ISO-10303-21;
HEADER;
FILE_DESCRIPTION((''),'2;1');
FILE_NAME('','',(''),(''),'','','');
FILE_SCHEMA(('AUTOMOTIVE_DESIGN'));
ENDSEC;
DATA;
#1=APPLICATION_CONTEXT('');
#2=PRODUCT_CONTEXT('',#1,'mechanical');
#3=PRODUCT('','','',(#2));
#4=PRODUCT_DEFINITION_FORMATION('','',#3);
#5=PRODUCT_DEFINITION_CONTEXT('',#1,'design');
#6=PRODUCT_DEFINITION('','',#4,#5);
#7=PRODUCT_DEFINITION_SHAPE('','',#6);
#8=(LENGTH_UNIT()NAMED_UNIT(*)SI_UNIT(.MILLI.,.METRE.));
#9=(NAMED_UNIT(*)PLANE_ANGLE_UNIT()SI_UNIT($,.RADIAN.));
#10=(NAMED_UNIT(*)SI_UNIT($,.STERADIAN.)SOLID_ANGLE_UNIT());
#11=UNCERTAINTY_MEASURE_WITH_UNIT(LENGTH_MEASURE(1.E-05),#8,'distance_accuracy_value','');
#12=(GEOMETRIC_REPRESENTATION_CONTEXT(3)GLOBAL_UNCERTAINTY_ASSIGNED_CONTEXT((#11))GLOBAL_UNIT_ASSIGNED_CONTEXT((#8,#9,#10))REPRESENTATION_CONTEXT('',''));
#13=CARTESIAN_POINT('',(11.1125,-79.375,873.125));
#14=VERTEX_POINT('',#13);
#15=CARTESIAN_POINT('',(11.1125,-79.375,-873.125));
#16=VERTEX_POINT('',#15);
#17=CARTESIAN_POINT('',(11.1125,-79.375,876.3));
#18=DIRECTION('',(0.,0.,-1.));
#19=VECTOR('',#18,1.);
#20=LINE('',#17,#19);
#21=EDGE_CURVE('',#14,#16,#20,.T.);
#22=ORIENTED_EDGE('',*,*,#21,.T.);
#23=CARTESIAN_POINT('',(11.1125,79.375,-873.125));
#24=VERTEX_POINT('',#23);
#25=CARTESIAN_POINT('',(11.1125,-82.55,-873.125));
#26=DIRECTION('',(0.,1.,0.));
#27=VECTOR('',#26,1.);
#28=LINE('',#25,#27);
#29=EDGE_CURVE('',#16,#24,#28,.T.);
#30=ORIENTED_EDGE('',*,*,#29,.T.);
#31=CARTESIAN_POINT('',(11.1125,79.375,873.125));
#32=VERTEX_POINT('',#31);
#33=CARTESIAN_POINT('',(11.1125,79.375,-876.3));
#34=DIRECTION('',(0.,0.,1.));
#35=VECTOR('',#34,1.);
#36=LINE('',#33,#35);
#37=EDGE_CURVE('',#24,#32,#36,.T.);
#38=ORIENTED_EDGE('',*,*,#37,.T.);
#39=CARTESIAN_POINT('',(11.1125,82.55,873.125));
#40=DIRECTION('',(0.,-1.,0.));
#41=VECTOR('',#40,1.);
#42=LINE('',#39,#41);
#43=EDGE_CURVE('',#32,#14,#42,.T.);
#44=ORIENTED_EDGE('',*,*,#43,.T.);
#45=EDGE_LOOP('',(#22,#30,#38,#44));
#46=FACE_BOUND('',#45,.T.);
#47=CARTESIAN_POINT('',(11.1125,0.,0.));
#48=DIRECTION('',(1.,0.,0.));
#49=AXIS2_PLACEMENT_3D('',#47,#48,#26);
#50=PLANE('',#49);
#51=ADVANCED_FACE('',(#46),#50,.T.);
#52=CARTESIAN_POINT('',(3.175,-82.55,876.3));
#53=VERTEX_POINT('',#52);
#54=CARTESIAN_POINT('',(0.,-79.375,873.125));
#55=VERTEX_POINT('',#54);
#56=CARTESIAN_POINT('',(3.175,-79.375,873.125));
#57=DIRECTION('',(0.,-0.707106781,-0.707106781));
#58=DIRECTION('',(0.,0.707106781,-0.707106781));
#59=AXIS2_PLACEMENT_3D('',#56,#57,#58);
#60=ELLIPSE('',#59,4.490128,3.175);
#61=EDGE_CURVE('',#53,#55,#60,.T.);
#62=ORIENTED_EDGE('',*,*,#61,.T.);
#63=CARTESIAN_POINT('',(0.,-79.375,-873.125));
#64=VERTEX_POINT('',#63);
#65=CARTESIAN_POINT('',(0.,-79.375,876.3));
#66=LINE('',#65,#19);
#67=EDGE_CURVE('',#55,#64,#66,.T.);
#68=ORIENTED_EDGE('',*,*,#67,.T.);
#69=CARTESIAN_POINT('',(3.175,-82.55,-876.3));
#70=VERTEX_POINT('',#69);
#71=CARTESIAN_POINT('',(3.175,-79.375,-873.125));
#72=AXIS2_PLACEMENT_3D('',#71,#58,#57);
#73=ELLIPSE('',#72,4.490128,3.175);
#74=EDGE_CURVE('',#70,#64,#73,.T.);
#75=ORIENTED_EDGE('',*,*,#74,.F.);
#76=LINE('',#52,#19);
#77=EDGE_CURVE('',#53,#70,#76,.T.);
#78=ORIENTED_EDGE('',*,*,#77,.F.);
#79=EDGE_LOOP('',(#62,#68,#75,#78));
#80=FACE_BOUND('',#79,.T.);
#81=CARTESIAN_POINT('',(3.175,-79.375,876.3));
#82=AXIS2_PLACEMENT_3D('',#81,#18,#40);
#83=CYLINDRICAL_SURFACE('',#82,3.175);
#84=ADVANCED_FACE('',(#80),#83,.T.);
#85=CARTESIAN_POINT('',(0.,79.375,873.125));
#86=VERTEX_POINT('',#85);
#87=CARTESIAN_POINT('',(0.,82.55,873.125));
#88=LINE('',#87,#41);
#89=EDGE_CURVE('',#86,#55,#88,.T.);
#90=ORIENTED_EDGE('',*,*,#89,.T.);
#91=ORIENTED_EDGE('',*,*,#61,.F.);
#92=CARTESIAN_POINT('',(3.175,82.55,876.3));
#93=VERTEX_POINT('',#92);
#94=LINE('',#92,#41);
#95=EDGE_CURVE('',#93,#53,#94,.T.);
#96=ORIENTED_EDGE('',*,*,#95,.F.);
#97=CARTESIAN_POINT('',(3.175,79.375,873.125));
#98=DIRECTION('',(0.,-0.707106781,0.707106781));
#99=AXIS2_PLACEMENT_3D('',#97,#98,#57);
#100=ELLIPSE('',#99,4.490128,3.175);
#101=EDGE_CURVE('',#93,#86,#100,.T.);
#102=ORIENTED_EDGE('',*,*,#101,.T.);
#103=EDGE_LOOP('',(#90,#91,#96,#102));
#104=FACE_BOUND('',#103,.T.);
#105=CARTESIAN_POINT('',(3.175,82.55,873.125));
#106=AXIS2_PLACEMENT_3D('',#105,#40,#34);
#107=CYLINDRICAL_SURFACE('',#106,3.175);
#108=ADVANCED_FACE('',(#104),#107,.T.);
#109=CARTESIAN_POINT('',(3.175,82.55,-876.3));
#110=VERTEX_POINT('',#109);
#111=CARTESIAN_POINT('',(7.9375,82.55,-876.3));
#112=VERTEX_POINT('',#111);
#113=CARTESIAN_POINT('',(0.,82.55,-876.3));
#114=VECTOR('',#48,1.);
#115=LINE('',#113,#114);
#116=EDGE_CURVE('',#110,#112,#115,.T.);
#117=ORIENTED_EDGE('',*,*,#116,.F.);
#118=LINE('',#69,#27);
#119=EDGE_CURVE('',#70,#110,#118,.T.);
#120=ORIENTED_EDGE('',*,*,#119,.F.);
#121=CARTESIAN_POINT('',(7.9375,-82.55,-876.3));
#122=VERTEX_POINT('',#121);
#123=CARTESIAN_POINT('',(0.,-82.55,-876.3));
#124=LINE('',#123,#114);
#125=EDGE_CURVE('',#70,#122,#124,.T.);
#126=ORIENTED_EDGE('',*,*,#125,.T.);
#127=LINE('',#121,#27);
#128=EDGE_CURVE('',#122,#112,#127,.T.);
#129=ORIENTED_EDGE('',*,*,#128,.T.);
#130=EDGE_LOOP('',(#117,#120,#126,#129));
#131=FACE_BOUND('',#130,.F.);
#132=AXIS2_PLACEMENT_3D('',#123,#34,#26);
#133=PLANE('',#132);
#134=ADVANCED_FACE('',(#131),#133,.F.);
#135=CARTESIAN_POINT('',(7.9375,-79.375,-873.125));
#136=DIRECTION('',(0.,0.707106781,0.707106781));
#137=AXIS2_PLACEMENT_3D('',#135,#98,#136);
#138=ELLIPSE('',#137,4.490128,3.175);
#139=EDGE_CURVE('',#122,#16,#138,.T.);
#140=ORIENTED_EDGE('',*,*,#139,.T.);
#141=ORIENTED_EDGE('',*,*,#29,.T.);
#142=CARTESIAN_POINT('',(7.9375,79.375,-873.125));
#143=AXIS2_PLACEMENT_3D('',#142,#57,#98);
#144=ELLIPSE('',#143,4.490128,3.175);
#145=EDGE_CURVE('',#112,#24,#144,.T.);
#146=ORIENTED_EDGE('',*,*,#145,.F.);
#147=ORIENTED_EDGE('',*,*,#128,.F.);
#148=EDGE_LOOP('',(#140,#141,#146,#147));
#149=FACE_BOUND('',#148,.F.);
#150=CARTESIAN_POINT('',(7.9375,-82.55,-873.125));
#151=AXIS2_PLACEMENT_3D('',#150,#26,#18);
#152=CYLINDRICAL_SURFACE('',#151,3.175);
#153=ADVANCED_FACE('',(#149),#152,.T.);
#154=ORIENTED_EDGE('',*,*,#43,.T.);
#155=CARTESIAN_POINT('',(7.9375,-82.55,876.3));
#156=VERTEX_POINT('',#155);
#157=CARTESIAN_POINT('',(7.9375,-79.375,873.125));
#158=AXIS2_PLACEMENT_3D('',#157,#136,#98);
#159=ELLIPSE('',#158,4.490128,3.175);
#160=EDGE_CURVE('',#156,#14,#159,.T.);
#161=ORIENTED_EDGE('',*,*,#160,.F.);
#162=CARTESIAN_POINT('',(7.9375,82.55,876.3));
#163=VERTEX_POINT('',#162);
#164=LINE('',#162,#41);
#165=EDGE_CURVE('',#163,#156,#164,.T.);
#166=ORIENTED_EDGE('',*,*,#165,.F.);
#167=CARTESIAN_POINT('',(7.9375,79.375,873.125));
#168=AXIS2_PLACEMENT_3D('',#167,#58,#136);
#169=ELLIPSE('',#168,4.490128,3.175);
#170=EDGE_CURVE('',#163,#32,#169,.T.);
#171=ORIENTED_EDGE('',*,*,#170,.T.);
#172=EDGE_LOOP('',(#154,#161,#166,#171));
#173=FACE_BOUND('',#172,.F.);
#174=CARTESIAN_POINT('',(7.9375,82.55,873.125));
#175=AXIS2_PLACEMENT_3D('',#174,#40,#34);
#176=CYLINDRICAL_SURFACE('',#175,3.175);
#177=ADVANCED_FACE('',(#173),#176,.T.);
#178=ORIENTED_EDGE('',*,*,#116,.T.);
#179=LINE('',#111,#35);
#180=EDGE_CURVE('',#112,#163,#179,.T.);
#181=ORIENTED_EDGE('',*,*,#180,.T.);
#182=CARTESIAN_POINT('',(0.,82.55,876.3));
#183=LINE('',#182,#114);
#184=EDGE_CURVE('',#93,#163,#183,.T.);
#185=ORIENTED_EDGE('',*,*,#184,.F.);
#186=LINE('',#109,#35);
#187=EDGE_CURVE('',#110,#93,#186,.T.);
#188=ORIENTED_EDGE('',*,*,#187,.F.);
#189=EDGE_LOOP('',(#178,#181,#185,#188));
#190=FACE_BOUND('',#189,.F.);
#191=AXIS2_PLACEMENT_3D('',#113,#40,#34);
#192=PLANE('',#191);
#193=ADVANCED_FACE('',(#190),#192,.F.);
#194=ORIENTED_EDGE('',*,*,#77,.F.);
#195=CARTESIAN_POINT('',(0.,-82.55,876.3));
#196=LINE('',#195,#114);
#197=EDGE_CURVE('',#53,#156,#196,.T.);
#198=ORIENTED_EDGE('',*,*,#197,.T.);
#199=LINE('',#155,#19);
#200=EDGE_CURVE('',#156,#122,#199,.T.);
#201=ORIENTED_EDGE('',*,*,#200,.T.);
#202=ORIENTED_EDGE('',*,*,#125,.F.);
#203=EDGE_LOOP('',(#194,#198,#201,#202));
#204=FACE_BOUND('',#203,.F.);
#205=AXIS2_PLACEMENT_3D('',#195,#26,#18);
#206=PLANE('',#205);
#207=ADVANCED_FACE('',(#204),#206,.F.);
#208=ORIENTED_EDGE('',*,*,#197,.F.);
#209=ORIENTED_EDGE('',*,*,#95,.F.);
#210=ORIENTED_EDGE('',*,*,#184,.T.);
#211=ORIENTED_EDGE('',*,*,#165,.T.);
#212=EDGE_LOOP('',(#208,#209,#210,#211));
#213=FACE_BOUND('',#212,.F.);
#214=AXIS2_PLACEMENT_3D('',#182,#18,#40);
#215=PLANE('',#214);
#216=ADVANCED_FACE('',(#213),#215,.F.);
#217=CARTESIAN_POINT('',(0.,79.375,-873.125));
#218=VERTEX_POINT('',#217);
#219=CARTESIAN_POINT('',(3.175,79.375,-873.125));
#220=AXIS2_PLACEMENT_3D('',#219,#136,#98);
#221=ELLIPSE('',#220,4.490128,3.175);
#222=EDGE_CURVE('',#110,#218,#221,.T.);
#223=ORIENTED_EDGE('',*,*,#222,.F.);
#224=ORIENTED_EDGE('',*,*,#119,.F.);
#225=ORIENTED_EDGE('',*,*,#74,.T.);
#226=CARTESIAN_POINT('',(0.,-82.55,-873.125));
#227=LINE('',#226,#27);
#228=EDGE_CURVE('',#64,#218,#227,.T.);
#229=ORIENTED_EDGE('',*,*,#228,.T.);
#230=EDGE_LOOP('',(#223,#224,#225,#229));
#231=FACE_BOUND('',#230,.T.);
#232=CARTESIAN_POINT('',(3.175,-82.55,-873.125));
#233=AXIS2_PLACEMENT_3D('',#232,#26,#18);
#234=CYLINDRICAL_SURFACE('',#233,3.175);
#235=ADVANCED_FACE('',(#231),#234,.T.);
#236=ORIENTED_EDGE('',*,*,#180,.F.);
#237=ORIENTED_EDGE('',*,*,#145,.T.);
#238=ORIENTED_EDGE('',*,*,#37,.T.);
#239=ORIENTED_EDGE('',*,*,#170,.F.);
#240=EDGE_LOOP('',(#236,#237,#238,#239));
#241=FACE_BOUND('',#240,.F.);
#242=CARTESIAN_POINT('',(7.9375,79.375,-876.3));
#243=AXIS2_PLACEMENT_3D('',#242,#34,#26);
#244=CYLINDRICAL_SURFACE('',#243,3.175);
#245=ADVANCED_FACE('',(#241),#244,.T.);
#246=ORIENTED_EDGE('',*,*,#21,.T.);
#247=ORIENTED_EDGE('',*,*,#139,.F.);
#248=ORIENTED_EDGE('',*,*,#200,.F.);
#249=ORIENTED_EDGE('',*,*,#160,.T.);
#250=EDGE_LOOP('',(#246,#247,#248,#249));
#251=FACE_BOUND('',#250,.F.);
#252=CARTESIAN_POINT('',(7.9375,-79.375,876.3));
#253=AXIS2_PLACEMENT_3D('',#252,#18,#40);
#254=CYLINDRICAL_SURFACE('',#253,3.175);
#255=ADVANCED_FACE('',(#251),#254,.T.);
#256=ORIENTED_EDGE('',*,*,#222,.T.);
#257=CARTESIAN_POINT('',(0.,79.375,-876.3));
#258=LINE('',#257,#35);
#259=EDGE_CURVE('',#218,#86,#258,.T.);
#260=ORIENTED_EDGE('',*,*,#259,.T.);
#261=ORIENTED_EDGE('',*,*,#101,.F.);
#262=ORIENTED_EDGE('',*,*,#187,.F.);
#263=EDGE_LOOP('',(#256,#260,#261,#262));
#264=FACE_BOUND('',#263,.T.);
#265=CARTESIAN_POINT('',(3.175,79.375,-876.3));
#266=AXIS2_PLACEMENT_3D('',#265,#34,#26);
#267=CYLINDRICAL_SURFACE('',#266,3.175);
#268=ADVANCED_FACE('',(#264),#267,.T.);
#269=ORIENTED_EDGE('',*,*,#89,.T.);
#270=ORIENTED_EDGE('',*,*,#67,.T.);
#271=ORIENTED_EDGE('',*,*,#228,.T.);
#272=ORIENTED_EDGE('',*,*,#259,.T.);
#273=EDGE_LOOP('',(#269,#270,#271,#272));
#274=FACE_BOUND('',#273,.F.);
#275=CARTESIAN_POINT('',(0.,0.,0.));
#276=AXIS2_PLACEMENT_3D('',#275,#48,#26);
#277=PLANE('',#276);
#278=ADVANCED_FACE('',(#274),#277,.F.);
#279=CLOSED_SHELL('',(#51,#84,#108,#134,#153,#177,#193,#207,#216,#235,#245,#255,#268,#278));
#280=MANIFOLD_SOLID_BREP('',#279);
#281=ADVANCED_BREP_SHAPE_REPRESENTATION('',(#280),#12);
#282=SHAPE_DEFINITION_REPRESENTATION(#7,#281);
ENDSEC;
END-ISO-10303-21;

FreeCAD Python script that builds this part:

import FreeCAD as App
import Part
import Sketcher

V = App.Vector
Q = App.Units.Quantity


def edges_at(feature, points):
    """Names of the edges that pass closest to the given points."""
    edges = feature.Shape.Edges
    near = lambda p: min(range(len(edges)), key=lambda i: edges[i].distToShape(Part.Vertex(*p))[0])
    return sorted({f"Edge{near(p) + 1}" for p in points})


def add_polygon(sketch, points):
    """Adds a closed chain of lines whose ends are joined by coincident constraints."""
    first, n = sketch.GeometryCount, len(points)
    for a, b in zip(points, points[1:] + points[:1]):
        sketch.addGeometry(Part.LineSegment(App.Vector(*a, 0), App.Vector(*b, 0)), False)
    for i in range(n):
        sketch.addConstraint(Sketcher.Constraint("Coincident", first + i, 2, first + (i + 1) % n, 1))

doc = App.newDocument("Part")
body = doc.addObject("PartDesign::Body", "Body")

# Sketch on YZ plane
sketch1 = body.newObject("Sketcher::SketchObject", "Sketch")
sketch1.AttachmentSupport = (doc.getObject("YZ_Plane"), [""])
sketch1.MapMode = "FlatFace"
add_polygon(sketch1, [(83, 876), (-83, 876), (-83, -876), (83, -876)])  # lines 0-3
sketch1.addConstraint([
    Sketcher.Constraint("Horizontal", 0),
    Sketcher.Constraint("Vertical", 1),
    Sketcher.Constraint("Horizontal", 2),
    Sketcher.Constraint("Vertical", 3),
    Sketcher.Constraint("Symmetric", 0, 2, 2, 2, -1, 1),
    Sketcher.Constraint("DistanceY", 1, 2, 1, 1, Q("69 in")),
    Sketcher.Constraint("DistanceX", 0, 2, 0, 1, Q("6.5 in")),
])
pad1 = body.newObject("PartDesign::Pad", "Pad")
pad1.Profile = sketch1
pad1.Length = Q("0.4375 in")
doc.recompute()

fillet = body.newObject("PartDesign::Fillet", "Fillet")
fillet.Base = (pad1, edges_at(pad1, [
    (11.113, 82.55, 0),
    (11.113, 0, 876.3),
    (0, -82.55, 0),
    (11.113, 0, -876.3),
    (11.113, -82.55, 0),
    (0, 0, 876.3),
    (0, 82.55, 0),
    (0, 0, -876.3),
]))
fillet.Radius = Q("0.125 in")

doc.recompute()
